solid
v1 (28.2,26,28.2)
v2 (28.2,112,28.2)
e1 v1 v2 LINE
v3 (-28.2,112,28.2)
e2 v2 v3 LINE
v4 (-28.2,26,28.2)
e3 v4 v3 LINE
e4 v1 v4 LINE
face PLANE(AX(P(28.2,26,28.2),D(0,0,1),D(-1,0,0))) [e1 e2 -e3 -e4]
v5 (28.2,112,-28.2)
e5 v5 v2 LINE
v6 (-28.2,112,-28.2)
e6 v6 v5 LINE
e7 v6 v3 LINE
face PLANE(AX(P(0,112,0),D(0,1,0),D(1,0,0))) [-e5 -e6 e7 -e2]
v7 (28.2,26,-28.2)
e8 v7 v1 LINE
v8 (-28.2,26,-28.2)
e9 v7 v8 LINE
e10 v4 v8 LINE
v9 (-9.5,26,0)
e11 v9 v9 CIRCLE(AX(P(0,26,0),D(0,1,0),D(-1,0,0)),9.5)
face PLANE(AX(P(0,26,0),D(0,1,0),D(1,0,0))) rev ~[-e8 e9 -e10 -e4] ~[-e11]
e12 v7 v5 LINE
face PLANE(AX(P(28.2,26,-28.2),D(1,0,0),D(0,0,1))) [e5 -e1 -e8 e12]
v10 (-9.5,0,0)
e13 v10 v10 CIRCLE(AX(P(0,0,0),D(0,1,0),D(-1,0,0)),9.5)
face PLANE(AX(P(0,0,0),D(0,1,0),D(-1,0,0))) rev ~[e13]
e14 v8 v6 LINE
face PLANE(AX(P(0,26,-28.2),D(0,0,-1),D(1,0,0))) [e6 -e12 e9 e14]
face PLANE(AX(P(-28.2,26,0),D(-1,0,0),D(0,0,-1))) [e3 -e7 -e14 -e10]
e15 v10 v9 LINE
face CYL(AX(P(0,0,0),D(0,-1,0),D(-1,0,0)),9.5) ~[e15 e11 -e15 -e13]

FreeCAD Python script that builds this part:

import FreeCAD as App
import Part
import Sketcher
from FreeCAD import Vector
Q = App.Units.Quantity

doc = App.newDocument("Part")
params = doc.addObject("Spreadsheet::Sheet", "Params")
for row, (alias, value) in enumerate([
    ("sketch1_diameter", "19 mm"),
    ("pad1_length", "26 mm"),
    ("sketch2_width", "56.4 mm"),
    ("pad2_length", "86 mm"),
], start=1):
    params.set(f"A{row}", alias)
    params.set(f"B{row}", "=" + value)
    params.setAlias(f"B{row}", alias)

body = doc.addObject("PartDesign::Body", "Body")

sketch1 = doc.addObject("Sketcher::SketchObject", "Sketch")
body.addObject(sketch1)
sketch1.AttachmentSupport = (doc.XZ_Plane, [""])
sketch1.MapMode = "FlatFace"
sketch1.addGeometry(Part.Circle(Vector(0, 0, 0), Vector(0, 0, 1), 10), False)
sketch1.addConstraint([
    Sketcher.Constraint("Coincident", 0, 3, -1, 1),
    Sketcher.Constraint("Diameter", 0, Q("19 mm")),
])
sketch1.setExpression("Constraints[1]", "Params.sketch1_diameter")
pad1 = doc.addObject("PartDesign::Pad", "Pad")
body.addObject(pad1)
pad1.Profile = sketch1
pad1.setExpression("Length", "Params.pad1_length")
pad1.Reversed = True

sketch2 = doc.addObject("Sketcher::SketchObject", "Sketch001")
body.addObject(sketch2)
sketch2.AttachmentSupport = (doc.XZ_Plane, [""])
sketch2.MapMode = "FlatFace"
sketch2.AttachmentOffset = App.Placement(Vector(0, 0, -26), App.Rotation())
sketch2.addGeometry([
    Part.LineSegment(Vector(28, -28, 0), Vector(-28, -28, 0)),
    Part.LineSegment(Vector(-28, -28, 0), Vector(-28, 28, 0)),
    Part.LineSegment(Vector(-28, 28, 0), Vector(28, 28, 0)),
    Part.LineSegment(Vector(28, 28, 0), Vector(28, -28, 0)),
], False)
sketch2.addConstraint([
    Sketcher.Constraint("Coincident", 0, 2, 1, 1),
    Sketcher.Constraint("Coincident", 1, 2, 2, 1),
    Sketcher.Constraint("Coincident", 2, 2, 3, 1),
    Sketcher.Constraint("Coincident", 3, 2, 0, 1),
    Sketcher.Constraint("Horizontal", 0),
    Sketcher.Constraint("Vertical", 1),
    Sketcher.Constraint("Horizontal", 2),
    Sketcher.Constraint("Vertical", 3),
    Sketcher.Constraint("Symmetric", 0, 2, 2, 2, -1, 1),
    Sketcher.Constraint("Equal", 2, 1),
    Sketcher.Constraint("DistanceX", 0, 2, 0, 1, Q("56.4 mm")),
])
sketch2.setExpression("Constraints[10]", "Params.sketch2_width")
pad2 = doc.addObject("PartDesign::Pad", "Pad001")
body.addObject(pad2)
pad2.Profile = sketch2
pad2.setExpression("Length", "Params.pad2_length")
pad2.Reversed = True

doc.recompute()
